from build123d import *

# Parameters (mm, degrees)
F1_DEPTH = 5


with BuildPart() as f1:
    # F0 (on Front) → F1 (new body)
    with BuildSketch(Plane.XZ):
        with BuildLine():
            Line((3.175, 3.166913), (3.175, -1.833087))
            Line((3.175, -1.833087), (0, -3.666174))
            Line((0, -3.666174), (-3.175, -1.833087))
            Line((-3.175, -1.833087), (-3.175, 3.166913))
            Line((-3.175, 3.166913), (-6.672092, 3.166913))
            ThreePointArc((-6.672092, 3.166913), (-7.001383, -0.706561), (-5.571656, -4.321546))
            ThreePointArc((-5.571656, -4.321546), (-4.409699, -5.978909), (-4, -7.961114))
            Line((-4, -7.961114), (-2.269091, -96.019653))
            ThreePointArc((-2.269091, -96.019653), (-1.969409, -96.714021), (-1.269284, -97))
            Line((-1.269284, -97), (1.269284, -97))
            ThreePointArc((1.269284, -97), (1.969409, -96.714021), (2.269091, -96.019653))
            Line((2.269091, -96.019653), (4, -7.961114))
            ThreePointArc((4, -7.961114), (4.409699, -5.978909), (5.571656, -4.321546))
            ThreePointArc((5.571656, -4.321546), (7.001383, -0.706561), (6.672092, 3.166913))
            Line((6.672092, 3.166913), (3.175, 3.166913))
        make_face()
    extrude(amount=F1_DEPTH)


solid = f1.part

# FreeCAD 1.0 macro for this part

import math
import FreeCAD as App
import Part
import Sketcher
from FreeCAD import Vector
Q = App.Units.Quantity

doc = App.newDocument("Part")
params = doc.addObject("Spreadsheet::Sheet", "Params")
for row, (alias, value) in enumerate([
    ("sketch1_radius", "4.999999 mm"),
    ("sketch1_radius2", "0.999999 mm"),
    ("sketch1_height", "5 mm"),
    ("pad1_length", "5 mm"),
], start=1):
    params.set(f"A{row}", alias)
    params.set(f"B{row}", "=" + value)
    params.setAlias(f"B{row}", alias)

body = doc.addObject("PartDesign::Body", "Body")

# Sketch on XZ plane
sketch1 = body.newObject("Sketcher::SketchObject", "Sketch")
sketch1.AttachmentSupport = (doc.getObject("XZ_Plane"), [""])
sketch1.MapMode = "FlatFace"
sketch1.addGeometry(Part.LineSegment(Vector(3.2, 3.2, 0), Vector(3.2, -1.8, 0)), False)
sketch1.addGeometry(Part.LineSegment(Vector(3.2, -1.8, 0), Vector(0, -3.7, 0)), False)
sketch1.addGeometry(Part.LineSegment(Vector(0, -3.7, 0), Vector(-3.2, -1.8, 0)), False)
sketch1.addGeometry(Part.LineSegment(Vector(-3.2, -1.8, 0), Vector(-3.2, 3.2, 0)), False)
sketch1.addGeometry(Part.LineSegment(Vector(-3.2, 3.2, 0), Vector(-6.7, 3.2, 0)), False)
sketch1.addGeometry(Part.ArcOfCircle(Part.Circle(Vector(1.4, 0.5, 0), Vector(0, 0, 1), 8.5), math.radians(162), math.radians(215)), False)
sketch1.addGeometry(Part.ArcOfCircle(Part.Circle(Vector(-9, -8, 0), Vector(0, 0, 1), 5), math.radians(0), math.radians(47)), False)
sketch1.addGeometry(Part.LineSegment(Vector(-4, -8, 0), Vector(-2.3, -96, 0)), False)
sketch1.addGeometry(Part.ArcOfCircle(Part.Circle(Vector(-1.3, -96, 0), Vector(0, 0, 1), 1), math.radians(-179), math.radians(-90)), False)
sketch1.addGeometry(Part.LineSegment(Vector(-1.3, -97, 0), Vector(1.3, -97, 0)), False)
sketch1.addGeometry(Part.ArcOfCircle(Part.Circle(Vector(1.3, -96, 0), Vector(0, 0, 1), 1), math.radians(-90), math.radians(-1)), False)
sketch1.addGeometry(Part.LineSegment(Vector(2.3, -96, 0), Vector(4, -8, 0)), False)
sketch1.addGeometry(Part.ArcOfCircle(Part.Circle(Vector(9, -8, 0), Vector(0, 0, 1), 5), math.radians(133), math.radians(180)), False)
sketch1.addGeometry(Part.ArcOfCircle(Part.Circle(Vector(-1.4, 0.5, 0), Vector(0, 0, 1), 8.5), math.radians(-35), math.radians(18)), False)
sketch1.addGeometry(Part.LineSegment(Vector(6.7, 3.2, 0), Vector(3.2, 3.2, 0)), False)
sketch1.addConstraint(Sketcher.Constraint("Coincident", 0, 2, 1, 1))
sketch1.addConstraint(Sketcher.Constraint("Coincident", 1, 2, 2, 1))
sketch1.addConstraint(Sketcher.Constraint("Coincident", 2, 2, 3, 1))
sketch1.addConstraint(Sketcher.Constraint("Coincident", 3, 2, 4, 1))
sketch1.addConstraint(Sketcher.Constraint("Coincident", 4, 2, 5, 1))
sketch1.addConstraint(Sketcher.Constraint("Coincident", 5, 2, 6, 2))
sketch1.addConstraint(Sketcher.Constraint("Coincident", 6, 1, 7, 1))
sketch1.addConstraint(Sketcher.Constraint("Tangent", 7, 2, 8, 1))
sketch1.addConstraint(Sketcher.Constraint("Tangent", 8, 2, 9, 1))
sketch1.addConstraint(Sketcher.Constraint("Tangent", 9, 2, 10, 1))
sketch1.addConstraint(Sketcher.Constraint("Tangent", 10, 2, 11, 1))
sketch1.addConstraint(Sketcher.Constraint("Coincident", 11, 2, 12, 2))
sketch1.addConstraint(Sketcher.Constraint("Coincident", 12, 1, 13, 1))
sketch1.addConstraint(Sketcher.Constraint("Coincident", 13, 2, 14, 1))
sketch1.addConstraint(Sketcher.Constraint("Coincident", 14, 2, 0, 1))
sketch1.addConstraint(Sketcher.Constraint("Vertical", 0))
sketch1.addConstraint(Sketcher.Constraint("Vertical", 3))
sketch1.addConstraint(Sketcher.Constraint("Horizontal", 4))
sketch1.addConstraint(Sketcher.Constraint("Horizontal", 9))
sketch1.addConstraint(Sketcher.Constraint("Horizontal", 14))
sketch1.addConstraint(Sketcher.Constraint("Equal", 8, 10))
sketch1.addConstraint(Sketcher.Constraint("Equal", 6, 12))
sketch1.addConstraint(Sketcher.Constraint("Equal", 5, 13))
sketch1.addConstraint(Sketcher.Constraint("Symmetric", 6, 3, 12, 3, -2))
sketch1.addConstraint(Sketcher.Constraint("Symmetric", 5, 3, 13, 3, -2))
sketch1.addConstraint(Sketcher.Constraint("Symmetric", 0, 2, 2, 2, -2))
sketch1.addConstraint(Sketcher.Constraint("PointOnObject", 1, 2, -2))
sketch1.addConstraint(Sketcher.Constraint("Horizontal", 12, 3, 6, 1))
sketch1.addConstraint(Sketcher.Constraint("Horizontal", 7, 2, 10, 2))
sketch1.addConstraint(Sketcher.Constraint("Horizontal", 6, 1, 11, 2))
sketch1.addConstraint(Sketcher.Constraint("Horizontal", 4, 2, 13, 2))
sketch1.addConstraint(Sketcher.Constraint("Radius", 6, 4.999999))
sketch1.addConstraint(Sketcher.Constraint("Radius", 8, 0.999999))
sketch1.addConstraint(Sketcher.Constraint("DistanceY", 0, 2, 0, 1, 5.0))
sketch1.addConstraint(Sketcher.Constraint("Angle", 1, Q("-150.000001 deg")))
sketch1.addConstraint(Sketcher.Constraint("DistanceX", 6, 3, -1, 1, 8.999999))
sketch1.addConstraint(Sketcher.Constraint("DistanceY", 8, 3, -1, 1, 96.000001))
sketch1.addConstraint(Sketcher.Constraint("DistanceX", 2, 2, 0, 2, 6.35))
sketch1.addConstraint(Sketcher.Constraint("Radius", 5, 8.500004))
sketch1.addConstraint(Sketcher.Constraint("DistanceX", 9, 1, 9, 2, 2.538568))
sketch1.addConstraint(Sketcher.Constraint("Distance", 7, 88.075549))
sketch1.addConstraint(Sketcher.Constraint("DistanceX", 4, 2, 4, 1, 3.497092))
sketch1.addConstraint(Sketcher.Constraint("DistanceY", -1, 1, 5, 3, 0.52925))
sketch1.addConstraint(Sketcher.Constraint("DistanceX", 8, 3, 5, 3, 2.677589))
sketch1.setExpression("Constraints[31]", "Params.sketch1_radius")
sketch1.setExpression("Constraints[32]", "Params.sketch1_radius2")
sketch1.setExpression("Constraints[33]", "Params.sketch1_height")
pad1 = body.newObject("PartDesign::Pad", "Pad")
pad1.Profile = sketch1
pad1.setExpression("Length", "Params.pad1_length")

doc.recompute()
